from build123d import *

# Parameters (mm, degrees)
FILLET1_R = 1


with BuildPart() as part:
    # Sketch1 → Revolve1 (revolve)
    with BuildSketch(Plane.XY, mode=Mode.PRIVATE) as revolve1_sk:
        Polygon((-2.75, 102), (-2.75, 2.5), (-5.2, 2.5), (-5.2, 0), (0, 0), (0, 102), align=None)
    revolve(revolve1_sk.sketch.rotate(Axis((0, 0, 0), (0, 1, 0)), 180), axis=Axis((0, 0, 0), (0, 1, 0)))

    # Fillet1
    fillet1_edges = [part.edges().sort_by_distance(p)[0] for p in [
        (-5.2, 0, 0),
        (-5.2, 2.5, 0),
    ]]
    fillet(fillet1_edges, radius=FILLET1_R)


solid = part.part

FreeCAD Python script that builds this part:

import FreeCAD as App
import Part
import Sketcher
Q = App.Units.Quantity


def edges_at(feature, points):
    """Names of the edges that pass closest to the given points."""
    edges = feature.Shape.Edges
    near = lambda p: min(range(len(edges)), key=lambda i: edges[i].distToShape(Part.Vertex(*p))[0])
    return sorted({f"Edge{near(p) + 1}" for p in points})


def add_polygon(sketch, points):
    """Adds a closed chain of lines whose ends are joined by coincident constraints."""
    first, n = sketch.GeometryCount, len(points)
    for a, b in zip(points, points[1:] + points[:1]):
        sketch.addGeometry(Part.LineSegment(App.Vector(*a, 0), App.Vector(*b, 0)), False)
    for i in range(n):
        sketch.addConstraint(Sketcher.Constraint("Coincident", first + i, 2, first + (i + 1) % n, 1))

doc = App.newDocument("Part")
params = doc.addObject("Spreadsheet::Sheet", "Params")
for row, (alias, value) in enumerate([
    ("sketch1_height", "102 mm"),
    ("sketch1_width", "5.2 mm"),
    ("sketch1_height2", "99.5 mm"),
    ("sketch1_width2", "2.45 mm"),
    ("revolution_angle", "360 deg"),
    ("fillet_radius", "1 mm"),
], start=1):
    params.set(f"A{row}", alias)
    params.set(f"B{row}", "=" + value)
    params.setAlias(f"B{row}", alias)

body = doc.addObject("PartDesign::Body", "Body")

# Sketch on XY plane
sketch1 = body.newObject("Sketcher::SketchObject", "Sketch")
sketch1.AttachmentSupport = (doc.getObject("XY_Plane"), [""])
sketch1.MapMode = "FlatFace"
add_polygon(sketch1, [(-2.75, 102), (-2.75, 2.5), (-5.2, 2.5), (-5.2, 0), (0, 0), (0, 102)])  # lines 0-5
sketch1.addConstraint([
    Sketcher.Constraint("Vertical", 0),
    Sketcher.Constraint("Horizontal", 1),
    Sketcher.Constraint("Vertical", 2),
    Sketcher.Constraint("Horizontal", 3),
    Sketcher.Constraint("Vertical", 4),
    Sketcher.Constraint("Horizontal", 5),
    Sketcher.Constraint("Coincident", 3, 2, -1, 1),
    Sketcher.Constraint("DistanceY", 4, 1, 4, 2, Q("102 mm")),
    Sketcher.Constraint("DistanceX", 3, 1, 3, 2, Q("5.2 mm")),
    Sketcher.Constraint("DistanceY", 0, 2, 0, 1, Q("99.5 mm")),
    Sketcher.Constraint("DistanceX", 1, 2, 1, 1, Q("2.45 mm")),
])
sketch1.setExpression("Constraints[13]", "Params.sketch1_height")
sketch1.setExpression("Constraints[14]", "Params.sketch1_width")
sketch1.setExpression("Constraints[15]", "Params.sketch1_height2")
sketch1.setExpression("Constraints[16]", "Params.sketch1_width2")
revolution = body.newObject("PartDesign::Revolution", "Revolution")
revolution.Profile = sketch1
revolution.ReferenceAxis = (sketch1, ["V_Axis"])
revolution.setExpression("Angle", "Params.revolution_angle")
doc.recompute()

fillet = body.newObject("PartDesign::Fillet", "Fillet")
fillet.Base = (revolution, edges_at(revolution, [(-5.2, 0, 0), (-5.2, 2.5, 0)]))
fillet.setExpression("Radius", "Params.fillet_radius")

doc.recompute()
